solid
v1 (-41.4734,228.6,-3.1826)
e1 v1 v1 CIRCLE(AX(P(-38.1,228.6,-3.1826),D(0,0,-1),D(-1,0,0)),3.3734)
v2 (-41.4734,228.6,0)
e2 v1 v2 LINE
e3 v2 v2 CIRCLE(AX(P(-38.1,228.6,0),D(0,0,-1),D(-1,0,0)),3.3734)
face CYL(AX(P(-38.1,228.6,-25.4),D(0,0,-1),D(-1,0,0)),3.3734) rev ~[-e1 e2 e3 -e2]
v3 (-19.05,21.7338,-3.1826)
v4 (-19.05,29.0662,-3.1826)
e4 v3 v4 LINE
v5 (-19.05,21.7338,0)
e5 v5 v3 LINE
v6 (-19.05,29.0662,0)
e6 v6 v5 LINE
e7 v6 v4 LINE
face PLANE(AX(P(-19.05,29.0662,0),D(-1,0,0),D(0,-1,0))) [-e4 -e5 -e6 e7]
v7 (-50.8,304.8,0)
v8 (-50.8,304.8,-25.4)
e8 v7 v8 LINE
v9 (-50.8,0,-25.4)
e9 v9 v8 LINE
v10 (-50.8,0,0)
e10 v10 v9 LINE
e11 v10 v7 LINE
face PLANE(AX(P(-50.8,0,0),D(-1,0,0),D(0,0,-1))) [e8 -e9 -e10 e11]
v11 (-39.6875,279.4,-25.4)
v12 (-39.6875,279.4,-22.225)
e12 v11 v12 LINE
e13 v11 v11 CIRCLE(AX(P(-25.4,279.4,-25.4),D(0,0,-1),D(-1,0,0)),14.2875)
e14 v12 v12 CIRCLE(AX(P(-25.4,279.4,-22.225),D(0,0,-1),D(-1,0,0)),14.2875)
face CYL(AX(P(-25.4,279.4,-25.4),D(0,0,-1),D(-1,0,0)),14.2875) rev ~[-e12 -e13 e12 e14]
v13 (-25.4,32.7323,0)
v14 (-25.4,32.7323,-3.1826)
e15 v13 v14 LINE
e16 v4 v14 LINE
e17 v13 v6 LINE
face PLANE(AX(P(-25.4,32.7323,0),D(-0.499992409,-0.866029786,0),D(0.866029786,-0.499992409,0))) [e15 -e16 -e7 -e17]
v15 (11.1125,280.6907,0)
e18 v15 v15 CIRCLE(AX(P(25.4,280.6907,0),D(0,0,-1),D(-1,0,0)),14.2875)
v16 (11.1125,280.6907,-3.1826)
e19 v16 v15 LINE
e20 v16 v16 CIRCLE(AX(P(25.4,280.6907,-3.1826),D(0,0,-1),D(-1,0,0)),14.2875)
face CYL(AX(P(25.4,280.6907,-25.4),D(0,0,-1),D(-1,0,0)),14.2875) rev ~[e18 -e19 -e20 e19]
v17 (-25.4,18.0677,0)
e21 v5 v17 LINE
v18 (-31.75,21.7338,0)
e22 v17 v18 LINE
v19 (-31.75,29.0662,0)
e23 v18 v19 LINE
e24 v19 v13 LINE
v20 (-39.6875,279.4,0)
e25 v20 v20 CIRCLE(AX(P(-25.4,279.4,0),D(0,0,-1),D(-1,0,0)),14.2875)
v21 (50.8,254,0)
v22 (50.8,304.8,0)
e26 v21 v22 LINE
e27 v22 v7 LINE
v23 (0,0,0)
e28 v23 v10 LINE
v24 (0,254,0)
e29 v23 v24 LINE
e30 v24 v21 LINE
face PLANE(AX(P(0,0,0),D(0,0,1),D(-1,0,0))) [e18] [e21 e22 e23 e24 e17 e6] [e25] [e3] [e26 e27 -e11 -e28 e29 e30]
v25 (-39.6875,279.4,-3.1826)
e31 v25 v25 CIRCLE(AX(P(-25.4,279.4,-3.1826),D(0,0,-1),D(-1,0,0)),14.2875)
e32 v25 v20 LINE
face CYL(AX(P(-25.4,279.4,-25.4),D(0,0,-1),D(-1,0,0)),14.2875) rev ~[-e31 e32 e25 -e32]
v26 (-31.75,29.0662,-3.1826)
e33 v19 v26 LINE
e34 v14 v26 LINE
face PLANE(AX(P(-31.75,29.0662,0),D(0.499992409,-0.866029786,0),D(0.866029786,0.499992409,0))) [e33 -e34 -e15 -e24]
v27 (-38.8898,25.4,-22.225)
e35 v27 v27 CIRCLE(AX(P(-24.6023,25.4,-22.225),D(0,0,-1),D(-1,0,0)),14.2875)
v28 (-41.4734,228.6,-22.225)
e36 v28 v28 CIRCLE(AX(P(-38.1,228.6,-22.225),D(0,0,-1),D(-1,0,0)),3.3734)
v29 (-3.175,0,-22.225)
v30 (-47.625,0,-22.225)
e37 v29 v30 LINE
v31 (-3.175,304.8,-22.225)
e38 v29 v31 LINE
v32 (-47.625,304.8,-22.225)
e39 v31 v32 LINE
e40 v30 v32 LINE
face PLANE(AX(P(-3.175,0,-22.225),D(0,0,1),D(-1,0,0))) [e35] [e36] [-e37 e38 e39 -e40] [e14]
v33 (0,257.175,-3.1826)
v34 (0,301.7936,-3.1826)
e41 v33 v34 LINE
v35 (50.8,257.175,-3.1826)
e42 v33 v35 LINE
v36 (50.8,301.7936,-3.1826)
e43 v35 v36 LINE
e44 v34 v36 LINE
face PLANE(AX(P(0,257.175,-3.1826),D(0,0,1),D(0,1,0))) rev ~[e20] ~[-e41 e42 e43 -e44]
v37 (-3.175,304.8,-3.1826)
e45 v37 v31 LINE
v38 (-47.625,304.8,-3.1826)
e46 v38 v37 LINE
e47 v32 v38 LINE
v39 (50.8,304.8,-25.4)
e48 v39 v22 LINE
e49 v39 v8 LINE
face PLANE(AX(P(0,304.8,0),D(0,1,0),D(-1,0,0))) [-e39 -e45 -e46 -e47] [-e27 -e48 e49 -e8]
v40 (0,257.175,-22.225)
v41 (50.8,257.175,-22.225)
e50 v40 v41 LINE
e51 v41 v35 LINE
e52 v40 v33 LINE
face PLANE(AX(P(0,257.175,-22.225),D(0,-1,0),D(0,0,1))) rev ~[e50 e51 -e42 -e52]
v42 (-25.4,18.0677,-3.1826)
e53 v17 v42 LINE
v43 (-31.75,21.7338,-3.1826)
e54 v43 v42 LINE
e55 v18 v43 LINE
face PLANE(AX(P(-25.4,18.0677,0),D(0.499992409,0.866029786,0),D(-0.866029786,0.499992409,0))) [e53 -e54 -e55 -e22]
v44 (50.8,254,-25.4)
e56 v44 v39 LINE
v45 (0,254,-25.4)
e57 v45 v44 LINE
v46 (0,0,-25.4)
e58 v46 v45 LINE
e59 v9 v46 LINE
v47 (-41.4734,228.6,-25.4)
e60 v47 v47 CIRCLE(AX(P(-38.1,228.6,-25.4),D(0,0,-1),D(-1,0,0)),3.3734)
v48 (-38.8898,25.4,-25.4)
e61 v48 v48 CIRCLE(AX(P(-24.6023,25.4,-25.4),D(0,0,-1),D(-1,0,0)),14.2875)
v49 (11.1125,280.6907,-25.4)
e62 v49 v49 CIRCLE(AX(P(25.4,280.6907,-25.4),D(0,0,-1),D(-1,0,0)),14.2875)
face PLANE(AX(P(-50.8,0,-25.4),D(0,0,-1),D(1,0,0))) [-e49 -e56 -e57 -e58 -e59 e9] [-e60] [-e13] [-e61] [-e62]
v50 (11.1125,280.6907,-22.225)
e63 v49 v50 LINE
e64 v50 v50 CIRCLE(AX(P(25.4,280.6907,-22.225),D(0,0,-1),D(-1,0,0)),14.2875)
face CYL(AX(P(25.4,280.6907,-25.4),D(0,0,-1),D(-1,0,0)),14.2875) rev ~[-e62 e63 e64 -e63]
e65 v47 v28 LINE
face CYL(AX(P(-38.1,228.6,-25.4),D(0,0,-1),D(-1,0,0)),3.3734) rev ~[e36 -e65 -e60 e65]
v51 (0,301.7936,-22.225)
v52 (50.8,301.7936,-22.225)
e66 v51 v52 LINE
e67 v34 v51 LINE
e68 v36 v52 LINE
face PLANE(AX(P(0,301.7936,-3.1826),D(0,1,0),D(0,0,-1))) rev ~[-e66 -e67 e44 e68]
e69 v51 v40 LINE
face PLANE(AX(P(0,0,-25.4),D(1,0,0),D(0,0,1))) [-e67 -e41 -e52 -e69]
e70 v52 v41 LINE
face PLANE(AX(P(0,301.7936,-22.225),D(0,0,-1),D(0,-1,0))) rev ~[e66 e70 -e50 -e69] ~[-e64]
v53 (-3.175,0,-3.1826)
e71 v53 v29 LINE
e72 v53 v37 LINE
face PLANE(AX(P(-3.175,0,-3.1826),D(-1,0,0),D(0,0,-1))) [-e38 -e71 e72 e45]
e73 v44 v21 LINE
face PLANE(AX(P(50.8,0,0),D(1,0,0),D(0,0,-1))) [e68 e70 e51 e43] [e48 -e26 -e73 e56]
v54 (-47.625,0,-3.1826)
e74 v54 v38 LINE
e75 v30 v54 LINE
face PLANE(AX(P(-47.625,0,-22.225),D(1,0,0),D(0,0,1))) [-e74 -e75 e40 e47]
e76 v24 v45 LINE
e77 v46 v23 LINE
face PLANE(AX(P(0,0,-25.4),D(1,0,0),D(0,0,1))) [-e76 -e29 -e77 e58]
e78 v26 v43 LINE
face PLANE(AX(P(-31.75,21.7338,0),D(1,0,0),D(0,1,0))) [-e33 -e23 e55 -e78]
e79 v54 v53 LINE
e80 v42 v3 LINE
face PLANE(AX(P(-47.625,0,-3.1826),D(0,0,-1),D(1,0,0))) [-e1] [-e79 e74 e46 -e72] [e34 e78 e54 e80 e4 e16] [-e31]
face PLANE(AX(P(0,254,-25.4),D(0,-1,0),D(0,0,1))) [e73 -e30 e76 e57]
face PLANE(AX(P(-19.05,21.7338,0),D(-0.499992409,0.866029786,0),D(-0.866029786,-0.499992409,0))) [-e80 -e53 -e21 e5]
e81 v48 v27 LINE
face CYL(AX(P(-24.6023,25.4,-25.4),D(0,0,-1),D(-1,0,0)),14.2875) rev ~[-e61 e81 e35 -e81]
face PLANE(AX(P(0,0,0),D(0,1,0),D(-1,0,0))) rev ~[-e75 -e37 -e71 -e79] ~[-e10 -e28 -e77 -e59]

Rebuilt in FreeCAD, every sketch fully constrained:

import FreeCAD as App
import Part
import Sketcher
from FreeCAD import Vector
Q = App.Units.Quantity

doc = App.newDocument("Part")
body = doc.addObject("PartDesign::Body", "Body")

# Sketch on XZ plane
sketch1 = body.newObject("Sketcher::SketchObject", "Sketch")
sketch1.AttachmentSupport = (doc.getObject("XZ_Plane"), [""])
sketch1.MapMode = "FlatFace"
sketch1.addGeometry(Part.LineSegment(Vector(-51, 0, 0), Vector(0, 0, 0)), False)
sketch1.addGeometry(Part.LineSegment(Vector(0, 0, 0), Vector(0, -25, 0)), False)
sketch1.addGeometry(Part.LineSegment(Vector(0, -25, 0), Vector(-51, -25, 0)), False)
sketch1.addGeometry(Part.LineSegment(Vector(-51, -25, 0), Vector(-51, 0, 0)), False)
sketch1.addGeometry(Part.LineSegment(Vector(-3, -3, 0), Vector(-48, -3, 0)), False)
sketch1.addGeometry(Part.LineSegment(Vector(-48, -3, 0), Vector(-48, -22, 0)), False)
sketch1.addGeometry(Part.LineSegment(Vector(-48, -22, 0), Vector(-3, -22, 0)), False)
sketch1.addGeometry(Part.LineSegment(Vector(-3, -22, 0), Vector(-3, -3, 0)), False)
sketch1.addConstraint(Sketcher.Constraint("Coincident", 0, 2, 1, 1))
sketch1.addConstraint(Sketcher.Constraint("Coincident", 1, 2, 2, 1))
sketch1.addConstraint(Sketcher.Constraint("Coincident", 2, 2, 3, 1))
sketch1.addConstraint(Sketcher.Constraint("Coincident", 3, 2, 0, 1))
sketch1.addConstraint(Sketcher.Constraint("Coincident", 4, 2, 5, 1))
sketch1.addConstraint(Sketcher.Constraint("Coincident", 5, 2, 6, 1))
sketch1.addConstraint(Sketcher.Constraint("Coincident", 6, 2, 7, 1))
sketch1.addConstraint(Sketcher.Constraint("Coincident", 7, 2, 4, 1))
sketch1.addConstraint(Sketcher.Constraint("Horizontal", 0))
sketch1.addConstraint(Sketcher.Constraint("Vertical", 1))
sketch1.addConstraint(Sketcher.Constraint("Horizontal", 2))
sketch1.addConstraint(Sketcher.Constraint("Vertical", 3))
sketch1.addConstraint(Sketcher.Constraint("Horizontal", 4))
sketch1.addConstraint(Sketcher.Constraint("Vertical", 5))
sketch1.addConstraint(Sketcher.Constraint("Horizontal", 6))
sketch1.addConstraint(Sketcher.Constraint("Vertical", 7))
sketch1.addConstraint(Sketcher.Constraint("Coincident", 0, 2, -1, 1))
sketch1.addConstraint(Sketcher.Constraint("DistanceX", 0, 1, 0, 2, Q("2 in")))
sketch1.addConstraint(Sketcher.Constraint("DistanceY", 1, 2, 1, 1, Q("1 in")))
sketch1.addConstraint(Sketcher.Constraint("DistanceX", 6, 2, -1, 1, Q("0.125 in")))
sketch1.addConstraint(Sketcher.Constraint("DistanceX", 3, 2, 4, 2, Q("0.125 in")))
sketch1.addConstraint(Sketcher.Constraint("DistanceY", 2, 2, 5, 2, Q("0.125 in")))
sketch1.addConstraint(Sketcher.Constraint("DistanceY", 4, 2, -1, 1, Q("0.1253 in")))
pad1 = body.newObject("PartDesign::Pad", "Pad")
pad1.Profile = sketch1
pad1.Length = Q("12 in")
pad1.Reversed = True

# Sketch on YZ plane
sketch2 = body.newObject("Sketcher::SketchObject", "Sketch001")
sketch2.AttachmentSupport = (doc.getObject("YZ_Plane"), [""])
sketch2.MapMode = "FlatFace"
sketch2.addGeometry(Part.LineSegment(Vector(254, -25, 0), Vector(305, -25, 0)), False)
sketch2.addGeometry(Part.LineSegment(Vector(305, -25, 0), Vector(305, 0, 0)), False)
sketch2.addGeometry(Part.LineSegment(Vector(305, 0, 0), Vector(254, 0, 0)), False)
sketch2.addGeometry(Part.LineSegment(Vector(254, 0, 0), Vector(254, -25, 0)), False)
sketch2.addGeometry(Part.LineSegment(Vector(257, -22, 0), Vector(257, -3, 0)), False)
sketch2.addGeometry(Part.LineSegment(Vector(257, -3, 0), Vector(302, -3, 0)), False)
sketch2.addGeometry(Part.LineSegment(Vector(302, -3, 0), Vector(302, -22, 0)), False)
sketch2.addGeometry(Part.LineSegment(Vector(302, -22, 0), Vector(257, -22, 0)), False)
sketch2.addConstraint(Sketcher.Constraint("Coincident", 0, 2, 1, 1))
sketch2.addConstraint(Sketcher.Constraint("Coincident", 1, 2, 2, 1))
sketch2.addConstraint(Sketcher.Constraint("Coincident", 2, 2, 3, 1))
sketch2.addConstraint(Sketcher.Constraint("Coincident", 3, 2, 0, 1))
sketch2.addConstraint(Sketcher.Constraint("Coincident", 4, 2, 5, 1))
sketch2.addConstraint(Sketcher.Constraint("Coincident", 5, 2, 6, 1))
sketch2.addConstraint(Sketcher.Constraint("Coincident", 6, 2, 7, 1))
sketch2.addConstraint(Sketcher.Constraint("Coincident", 7, 2, 4, 1))
sketch2.addConstraint(Sketcher.Constraint("Horizontal", 0))
sketch2.addConstraint(Sketcher.Constraint("Vertical", 1))
sketch2.addConstraint(Sketcher.Constraint("Horizontal", 2))
sketch2.addConstraint(Sketcher.Constraint("Vertical", 3))
sketch2.addConstraint(Sketcher.Constraint("Vertical", 4))
sketch2.addConstraint(Sketcher.Constraint("Horizontal", 5))
sketch2.addConstraint(Sketcher.Constraint("Vertical", 6))
sketch2.addConstraint(Sketcher.Constraint("Horizontal", 7))
sketch2.addConstraint(Sketcher.Constraint("PointOnObject", 1, 2, -1))
sketch2.addConstraint(Sketcher.Constraint("DistanceX", 0, 1, 0, 2, Q("2 in")))
sketch2.addConstraint(Sketcher.Constraint("DistanceY", 1, 1, 1, 2, Q("1 in")))
sketch2.addConstraint(Sketcher.Constraint("DistanceX", -1, 1, 0, 2, Q("12 in")))
sketch2.addConstraint(Sketcher.Constraint("DistanceX", 2, 2, 4, 2, Q("0.125 in")))
sketch2.addConstraint(Sketcher.Constraint("DistanceY", 0, 2, 6, 2, Q("0.125 in")))
sketch2.addConstraint(Sketcher.Constraint("DistanceY", 4, 1, 4, 2, Q("0.7497 in")))
sketch2.addConstraint(Sketcher.Constraint("DistanceX", 5, 1, 5, 2, 44.6186))
pad2 = body.newObject("PartDesign::Pad", "Pad001")
pad2.Profile = sketch2
pad2.Length = Q("2 in")

# Sketch on XY plane
sketch3 = body.newObject("Sketcher::SketchObject", "Sketch002")
sketch3.AttachmentSupport = (doc.getObject("XY_Plane"), [""])
sketch3.MapMode = "FlatFace"
sketch3.AttachmentOffset = App.Placement(Vector(0, 0, -1 * 25.4), App.Rotation())
sketch3.addGeometry(Part.Circle(Vector(25, 281, 0), Vector(0, 0, 1), 14), False)
sketch3.addConstraint(Sketcher.Constraint("Diameter", 0, Q("1.125 in")))
sketch3.addConstraint(Sketcher.Constraint("DistanceX", -1, 1, 0, 3, Q("1 in")))
sketch3.addConstraint(Sketcher.Constraint("DistanceY", -1, 1, 0, 3, 280.6907))
pocket1 = body.newObject("PartDesign::Pocket", "Pocket")
pocket1.Profile = sketch3
pocket1.Type = "ThroughAll"
pocket1.Reversed = True

# Sketch on XY plane
sketch4 = body.newObject("Sketcher::SketchObject", "Sketch003")
sketch4.AttachmentSupport = (doc.getObject("XY_Plane"), [""])
sketch4.MapMode = "FlatFace"
sketch4.AttachmentOffset = App.Placement(Vector(0, 0, -1 * 25.4), App.Rotation())
sketch4.addGeometry(Part.Circle(Vector(-25, 25, 0), Vector(0, 0, 1), 14), False)
sketch4.addConstraint(Sketcher.Constraint("Diameter", 0, Q("1.125 in")))
sketch4.addConstraint(Sketcher.Constraint("DistanceY", -1, 1, 0, 3, Q("1 in")))
sketch4.addConstraint(Sketcher.Constraint("DistanceX", 0, 3, -1, 1, Q("0.9686 in")))
pocket2 = body.newObject("PartDesign::Pocket", "Pocket001")
pocket2.Profile = sketch4
pocket2.Type = "UpToFirst"
pocket2.Reversed = True

# Sketch on XY plane
sketch5 = body.newObject("Sketcher::SketchObject", "Sketch004")
sketch5.AttachmentSupport = (doc.getObject("XY_Plane"), [""])
sketch5.MapMode = "FlatFace"
sketch5.AttachmentOffset = App.Placement(Vector(0, 0, -1 * 25.4), App.Rotation())
sketch5.addGeometry(Part.Circle(Vector(-25.4, 279.4, 0), Vector(0, 0, 1), 14.3), False)
sketch5.addGeometry(Part.Circle(Vector(-38.1, 228.6, 0), Vector(0, 0, 1), 3.4), False)
sketch5.addConstraint(Sketcher.Constraint("Diameter", 0, Q("1.125 in")))
sketch5.addConstraint(Sketcher.Constraint("Diameter", 1, Q("0.265622 in")))
sketch5.addConstraint(Sketcher.Constraint("DistanceX", 0, 3, -1, 1, Q("1 in")))
sketch5.addConstraint(Sketcher.Constraint("DistanceX", 1, 3, 0, 3, Q("0.5 in")))
sketch5.addConstraint(Sketcher.Constraint("DistanceY", -1, 1, 0, 3, Q("11 in")))
sketch5.addConstraint(Sketcher.Constraint("DistanceY", -1, 1, 1, 3, Q("9 in")))
pocket3 = body.newObject("PartDesign::Pocket", "Pocket002")
pocket3.Profile = sketch5
pocket3.Length = Q("1 in")
pocket3.Reversed = True

# Sketch on XY plane
sketch6 = body.newObject("Sketcher::SketchObject", "Sketch005")
sketch6.AttachmentSupport = (doc.getObject("XY_Plane"), [""])
sketch6.MapMode = "FlatFace"
sketch6.addGeometry(Part.LineSegment(Vector(-32, 22, 0), Vector(-25, 18, 0)), False)
sketch6.addGeometry(Part.LineSegment(Vector(-25, 18, 0), Vector(-19, 22, 0)), False)
sketch6.addGeometry(Part.LineSegment(Vector(-19, 22, 0), Vector(-19, 29, 0)), False)
sketch6.addGeometry(Part.LineSegment(Vector(-19, 29, 0), Vector(-25, 33, 0)), False)
sketch6.addGeometry(Part.LineSegment(Vector(-25, 33, 0), Vector(-32, 29, 0)), False)
sketch6.addGeometry(Part.LineSegment(Vector(-32, 29, 0), Vector(-32, 22, 0)), False)
sketch6.addConstraint(Sketcher.Constraint("Coincident", 0, 2, 1, 1))
sketch6.addConstraint(Sketcher.Constraint("Coincident", 1, 2, 2, 1))
sketch6.addConstraint(Sketcher.Constraint("Coincident", 2, 2, 3, 1))
sketch6.addConstraint(Sketcher.Constraint("Coincident", 3, 2, 4, 1))
sketch6.addConstraint(Sketcher.Constraint("Coincident", 4, 2, 5, 1))
sketch6.addConstraint(Sketcher.Constraint("Coincident", 5, 2, 0, 1))
sketch6.addConstraint(Sketcher.Constraint("Vertical", 2))
sketch6.addConstraint(Sketcher.Constraint("Vertical", 5))
sketch6.addConstraint(Sketcher.Constraint("Parallel", 0, 3))
sketch6.addConstraint(Sketcher.Constraint("Parallel", 1, 4))
sketch6.addConstraint(Sketcher.Constraint("Horizontal", 2, 2, 4, 2))
sketch6.addConstraint(Sketcher.Constraint("Horizontal", 1, 2, 5, 2))
sketch6.addConstraint(Sketcher.Constraint("Vertical", 0, 2, 3, 2))
sketch6.addConstraint(Sketcher.Constraint("DistanceX", 0, 2, -1, 1, Q("1 in")))
sketch6.addConstraint(Sketcher.Constraint("DistanceX", 4, 2, 2, 2, Q("0.5 in")))
sketch6.addConstraint(Sketcher.Constraint("Angle", 0, Q("-29.9995 deg")))
sketch6.addConstraint(Sketcher.Constraint("DistanceY", 0, 2, 2, 2, Q("0.433 in")))
sketch6.addConstraint(Sketcher.Constraint("DistanceY", -1, 1, 0, 2, 18.0677))
pocket4 = body.newObject("PartDesign::Pocket", "Pocket003")
pocket4.Profile = sketch6
pocket4.Type = "ThroughAll"

doc.recompute()
